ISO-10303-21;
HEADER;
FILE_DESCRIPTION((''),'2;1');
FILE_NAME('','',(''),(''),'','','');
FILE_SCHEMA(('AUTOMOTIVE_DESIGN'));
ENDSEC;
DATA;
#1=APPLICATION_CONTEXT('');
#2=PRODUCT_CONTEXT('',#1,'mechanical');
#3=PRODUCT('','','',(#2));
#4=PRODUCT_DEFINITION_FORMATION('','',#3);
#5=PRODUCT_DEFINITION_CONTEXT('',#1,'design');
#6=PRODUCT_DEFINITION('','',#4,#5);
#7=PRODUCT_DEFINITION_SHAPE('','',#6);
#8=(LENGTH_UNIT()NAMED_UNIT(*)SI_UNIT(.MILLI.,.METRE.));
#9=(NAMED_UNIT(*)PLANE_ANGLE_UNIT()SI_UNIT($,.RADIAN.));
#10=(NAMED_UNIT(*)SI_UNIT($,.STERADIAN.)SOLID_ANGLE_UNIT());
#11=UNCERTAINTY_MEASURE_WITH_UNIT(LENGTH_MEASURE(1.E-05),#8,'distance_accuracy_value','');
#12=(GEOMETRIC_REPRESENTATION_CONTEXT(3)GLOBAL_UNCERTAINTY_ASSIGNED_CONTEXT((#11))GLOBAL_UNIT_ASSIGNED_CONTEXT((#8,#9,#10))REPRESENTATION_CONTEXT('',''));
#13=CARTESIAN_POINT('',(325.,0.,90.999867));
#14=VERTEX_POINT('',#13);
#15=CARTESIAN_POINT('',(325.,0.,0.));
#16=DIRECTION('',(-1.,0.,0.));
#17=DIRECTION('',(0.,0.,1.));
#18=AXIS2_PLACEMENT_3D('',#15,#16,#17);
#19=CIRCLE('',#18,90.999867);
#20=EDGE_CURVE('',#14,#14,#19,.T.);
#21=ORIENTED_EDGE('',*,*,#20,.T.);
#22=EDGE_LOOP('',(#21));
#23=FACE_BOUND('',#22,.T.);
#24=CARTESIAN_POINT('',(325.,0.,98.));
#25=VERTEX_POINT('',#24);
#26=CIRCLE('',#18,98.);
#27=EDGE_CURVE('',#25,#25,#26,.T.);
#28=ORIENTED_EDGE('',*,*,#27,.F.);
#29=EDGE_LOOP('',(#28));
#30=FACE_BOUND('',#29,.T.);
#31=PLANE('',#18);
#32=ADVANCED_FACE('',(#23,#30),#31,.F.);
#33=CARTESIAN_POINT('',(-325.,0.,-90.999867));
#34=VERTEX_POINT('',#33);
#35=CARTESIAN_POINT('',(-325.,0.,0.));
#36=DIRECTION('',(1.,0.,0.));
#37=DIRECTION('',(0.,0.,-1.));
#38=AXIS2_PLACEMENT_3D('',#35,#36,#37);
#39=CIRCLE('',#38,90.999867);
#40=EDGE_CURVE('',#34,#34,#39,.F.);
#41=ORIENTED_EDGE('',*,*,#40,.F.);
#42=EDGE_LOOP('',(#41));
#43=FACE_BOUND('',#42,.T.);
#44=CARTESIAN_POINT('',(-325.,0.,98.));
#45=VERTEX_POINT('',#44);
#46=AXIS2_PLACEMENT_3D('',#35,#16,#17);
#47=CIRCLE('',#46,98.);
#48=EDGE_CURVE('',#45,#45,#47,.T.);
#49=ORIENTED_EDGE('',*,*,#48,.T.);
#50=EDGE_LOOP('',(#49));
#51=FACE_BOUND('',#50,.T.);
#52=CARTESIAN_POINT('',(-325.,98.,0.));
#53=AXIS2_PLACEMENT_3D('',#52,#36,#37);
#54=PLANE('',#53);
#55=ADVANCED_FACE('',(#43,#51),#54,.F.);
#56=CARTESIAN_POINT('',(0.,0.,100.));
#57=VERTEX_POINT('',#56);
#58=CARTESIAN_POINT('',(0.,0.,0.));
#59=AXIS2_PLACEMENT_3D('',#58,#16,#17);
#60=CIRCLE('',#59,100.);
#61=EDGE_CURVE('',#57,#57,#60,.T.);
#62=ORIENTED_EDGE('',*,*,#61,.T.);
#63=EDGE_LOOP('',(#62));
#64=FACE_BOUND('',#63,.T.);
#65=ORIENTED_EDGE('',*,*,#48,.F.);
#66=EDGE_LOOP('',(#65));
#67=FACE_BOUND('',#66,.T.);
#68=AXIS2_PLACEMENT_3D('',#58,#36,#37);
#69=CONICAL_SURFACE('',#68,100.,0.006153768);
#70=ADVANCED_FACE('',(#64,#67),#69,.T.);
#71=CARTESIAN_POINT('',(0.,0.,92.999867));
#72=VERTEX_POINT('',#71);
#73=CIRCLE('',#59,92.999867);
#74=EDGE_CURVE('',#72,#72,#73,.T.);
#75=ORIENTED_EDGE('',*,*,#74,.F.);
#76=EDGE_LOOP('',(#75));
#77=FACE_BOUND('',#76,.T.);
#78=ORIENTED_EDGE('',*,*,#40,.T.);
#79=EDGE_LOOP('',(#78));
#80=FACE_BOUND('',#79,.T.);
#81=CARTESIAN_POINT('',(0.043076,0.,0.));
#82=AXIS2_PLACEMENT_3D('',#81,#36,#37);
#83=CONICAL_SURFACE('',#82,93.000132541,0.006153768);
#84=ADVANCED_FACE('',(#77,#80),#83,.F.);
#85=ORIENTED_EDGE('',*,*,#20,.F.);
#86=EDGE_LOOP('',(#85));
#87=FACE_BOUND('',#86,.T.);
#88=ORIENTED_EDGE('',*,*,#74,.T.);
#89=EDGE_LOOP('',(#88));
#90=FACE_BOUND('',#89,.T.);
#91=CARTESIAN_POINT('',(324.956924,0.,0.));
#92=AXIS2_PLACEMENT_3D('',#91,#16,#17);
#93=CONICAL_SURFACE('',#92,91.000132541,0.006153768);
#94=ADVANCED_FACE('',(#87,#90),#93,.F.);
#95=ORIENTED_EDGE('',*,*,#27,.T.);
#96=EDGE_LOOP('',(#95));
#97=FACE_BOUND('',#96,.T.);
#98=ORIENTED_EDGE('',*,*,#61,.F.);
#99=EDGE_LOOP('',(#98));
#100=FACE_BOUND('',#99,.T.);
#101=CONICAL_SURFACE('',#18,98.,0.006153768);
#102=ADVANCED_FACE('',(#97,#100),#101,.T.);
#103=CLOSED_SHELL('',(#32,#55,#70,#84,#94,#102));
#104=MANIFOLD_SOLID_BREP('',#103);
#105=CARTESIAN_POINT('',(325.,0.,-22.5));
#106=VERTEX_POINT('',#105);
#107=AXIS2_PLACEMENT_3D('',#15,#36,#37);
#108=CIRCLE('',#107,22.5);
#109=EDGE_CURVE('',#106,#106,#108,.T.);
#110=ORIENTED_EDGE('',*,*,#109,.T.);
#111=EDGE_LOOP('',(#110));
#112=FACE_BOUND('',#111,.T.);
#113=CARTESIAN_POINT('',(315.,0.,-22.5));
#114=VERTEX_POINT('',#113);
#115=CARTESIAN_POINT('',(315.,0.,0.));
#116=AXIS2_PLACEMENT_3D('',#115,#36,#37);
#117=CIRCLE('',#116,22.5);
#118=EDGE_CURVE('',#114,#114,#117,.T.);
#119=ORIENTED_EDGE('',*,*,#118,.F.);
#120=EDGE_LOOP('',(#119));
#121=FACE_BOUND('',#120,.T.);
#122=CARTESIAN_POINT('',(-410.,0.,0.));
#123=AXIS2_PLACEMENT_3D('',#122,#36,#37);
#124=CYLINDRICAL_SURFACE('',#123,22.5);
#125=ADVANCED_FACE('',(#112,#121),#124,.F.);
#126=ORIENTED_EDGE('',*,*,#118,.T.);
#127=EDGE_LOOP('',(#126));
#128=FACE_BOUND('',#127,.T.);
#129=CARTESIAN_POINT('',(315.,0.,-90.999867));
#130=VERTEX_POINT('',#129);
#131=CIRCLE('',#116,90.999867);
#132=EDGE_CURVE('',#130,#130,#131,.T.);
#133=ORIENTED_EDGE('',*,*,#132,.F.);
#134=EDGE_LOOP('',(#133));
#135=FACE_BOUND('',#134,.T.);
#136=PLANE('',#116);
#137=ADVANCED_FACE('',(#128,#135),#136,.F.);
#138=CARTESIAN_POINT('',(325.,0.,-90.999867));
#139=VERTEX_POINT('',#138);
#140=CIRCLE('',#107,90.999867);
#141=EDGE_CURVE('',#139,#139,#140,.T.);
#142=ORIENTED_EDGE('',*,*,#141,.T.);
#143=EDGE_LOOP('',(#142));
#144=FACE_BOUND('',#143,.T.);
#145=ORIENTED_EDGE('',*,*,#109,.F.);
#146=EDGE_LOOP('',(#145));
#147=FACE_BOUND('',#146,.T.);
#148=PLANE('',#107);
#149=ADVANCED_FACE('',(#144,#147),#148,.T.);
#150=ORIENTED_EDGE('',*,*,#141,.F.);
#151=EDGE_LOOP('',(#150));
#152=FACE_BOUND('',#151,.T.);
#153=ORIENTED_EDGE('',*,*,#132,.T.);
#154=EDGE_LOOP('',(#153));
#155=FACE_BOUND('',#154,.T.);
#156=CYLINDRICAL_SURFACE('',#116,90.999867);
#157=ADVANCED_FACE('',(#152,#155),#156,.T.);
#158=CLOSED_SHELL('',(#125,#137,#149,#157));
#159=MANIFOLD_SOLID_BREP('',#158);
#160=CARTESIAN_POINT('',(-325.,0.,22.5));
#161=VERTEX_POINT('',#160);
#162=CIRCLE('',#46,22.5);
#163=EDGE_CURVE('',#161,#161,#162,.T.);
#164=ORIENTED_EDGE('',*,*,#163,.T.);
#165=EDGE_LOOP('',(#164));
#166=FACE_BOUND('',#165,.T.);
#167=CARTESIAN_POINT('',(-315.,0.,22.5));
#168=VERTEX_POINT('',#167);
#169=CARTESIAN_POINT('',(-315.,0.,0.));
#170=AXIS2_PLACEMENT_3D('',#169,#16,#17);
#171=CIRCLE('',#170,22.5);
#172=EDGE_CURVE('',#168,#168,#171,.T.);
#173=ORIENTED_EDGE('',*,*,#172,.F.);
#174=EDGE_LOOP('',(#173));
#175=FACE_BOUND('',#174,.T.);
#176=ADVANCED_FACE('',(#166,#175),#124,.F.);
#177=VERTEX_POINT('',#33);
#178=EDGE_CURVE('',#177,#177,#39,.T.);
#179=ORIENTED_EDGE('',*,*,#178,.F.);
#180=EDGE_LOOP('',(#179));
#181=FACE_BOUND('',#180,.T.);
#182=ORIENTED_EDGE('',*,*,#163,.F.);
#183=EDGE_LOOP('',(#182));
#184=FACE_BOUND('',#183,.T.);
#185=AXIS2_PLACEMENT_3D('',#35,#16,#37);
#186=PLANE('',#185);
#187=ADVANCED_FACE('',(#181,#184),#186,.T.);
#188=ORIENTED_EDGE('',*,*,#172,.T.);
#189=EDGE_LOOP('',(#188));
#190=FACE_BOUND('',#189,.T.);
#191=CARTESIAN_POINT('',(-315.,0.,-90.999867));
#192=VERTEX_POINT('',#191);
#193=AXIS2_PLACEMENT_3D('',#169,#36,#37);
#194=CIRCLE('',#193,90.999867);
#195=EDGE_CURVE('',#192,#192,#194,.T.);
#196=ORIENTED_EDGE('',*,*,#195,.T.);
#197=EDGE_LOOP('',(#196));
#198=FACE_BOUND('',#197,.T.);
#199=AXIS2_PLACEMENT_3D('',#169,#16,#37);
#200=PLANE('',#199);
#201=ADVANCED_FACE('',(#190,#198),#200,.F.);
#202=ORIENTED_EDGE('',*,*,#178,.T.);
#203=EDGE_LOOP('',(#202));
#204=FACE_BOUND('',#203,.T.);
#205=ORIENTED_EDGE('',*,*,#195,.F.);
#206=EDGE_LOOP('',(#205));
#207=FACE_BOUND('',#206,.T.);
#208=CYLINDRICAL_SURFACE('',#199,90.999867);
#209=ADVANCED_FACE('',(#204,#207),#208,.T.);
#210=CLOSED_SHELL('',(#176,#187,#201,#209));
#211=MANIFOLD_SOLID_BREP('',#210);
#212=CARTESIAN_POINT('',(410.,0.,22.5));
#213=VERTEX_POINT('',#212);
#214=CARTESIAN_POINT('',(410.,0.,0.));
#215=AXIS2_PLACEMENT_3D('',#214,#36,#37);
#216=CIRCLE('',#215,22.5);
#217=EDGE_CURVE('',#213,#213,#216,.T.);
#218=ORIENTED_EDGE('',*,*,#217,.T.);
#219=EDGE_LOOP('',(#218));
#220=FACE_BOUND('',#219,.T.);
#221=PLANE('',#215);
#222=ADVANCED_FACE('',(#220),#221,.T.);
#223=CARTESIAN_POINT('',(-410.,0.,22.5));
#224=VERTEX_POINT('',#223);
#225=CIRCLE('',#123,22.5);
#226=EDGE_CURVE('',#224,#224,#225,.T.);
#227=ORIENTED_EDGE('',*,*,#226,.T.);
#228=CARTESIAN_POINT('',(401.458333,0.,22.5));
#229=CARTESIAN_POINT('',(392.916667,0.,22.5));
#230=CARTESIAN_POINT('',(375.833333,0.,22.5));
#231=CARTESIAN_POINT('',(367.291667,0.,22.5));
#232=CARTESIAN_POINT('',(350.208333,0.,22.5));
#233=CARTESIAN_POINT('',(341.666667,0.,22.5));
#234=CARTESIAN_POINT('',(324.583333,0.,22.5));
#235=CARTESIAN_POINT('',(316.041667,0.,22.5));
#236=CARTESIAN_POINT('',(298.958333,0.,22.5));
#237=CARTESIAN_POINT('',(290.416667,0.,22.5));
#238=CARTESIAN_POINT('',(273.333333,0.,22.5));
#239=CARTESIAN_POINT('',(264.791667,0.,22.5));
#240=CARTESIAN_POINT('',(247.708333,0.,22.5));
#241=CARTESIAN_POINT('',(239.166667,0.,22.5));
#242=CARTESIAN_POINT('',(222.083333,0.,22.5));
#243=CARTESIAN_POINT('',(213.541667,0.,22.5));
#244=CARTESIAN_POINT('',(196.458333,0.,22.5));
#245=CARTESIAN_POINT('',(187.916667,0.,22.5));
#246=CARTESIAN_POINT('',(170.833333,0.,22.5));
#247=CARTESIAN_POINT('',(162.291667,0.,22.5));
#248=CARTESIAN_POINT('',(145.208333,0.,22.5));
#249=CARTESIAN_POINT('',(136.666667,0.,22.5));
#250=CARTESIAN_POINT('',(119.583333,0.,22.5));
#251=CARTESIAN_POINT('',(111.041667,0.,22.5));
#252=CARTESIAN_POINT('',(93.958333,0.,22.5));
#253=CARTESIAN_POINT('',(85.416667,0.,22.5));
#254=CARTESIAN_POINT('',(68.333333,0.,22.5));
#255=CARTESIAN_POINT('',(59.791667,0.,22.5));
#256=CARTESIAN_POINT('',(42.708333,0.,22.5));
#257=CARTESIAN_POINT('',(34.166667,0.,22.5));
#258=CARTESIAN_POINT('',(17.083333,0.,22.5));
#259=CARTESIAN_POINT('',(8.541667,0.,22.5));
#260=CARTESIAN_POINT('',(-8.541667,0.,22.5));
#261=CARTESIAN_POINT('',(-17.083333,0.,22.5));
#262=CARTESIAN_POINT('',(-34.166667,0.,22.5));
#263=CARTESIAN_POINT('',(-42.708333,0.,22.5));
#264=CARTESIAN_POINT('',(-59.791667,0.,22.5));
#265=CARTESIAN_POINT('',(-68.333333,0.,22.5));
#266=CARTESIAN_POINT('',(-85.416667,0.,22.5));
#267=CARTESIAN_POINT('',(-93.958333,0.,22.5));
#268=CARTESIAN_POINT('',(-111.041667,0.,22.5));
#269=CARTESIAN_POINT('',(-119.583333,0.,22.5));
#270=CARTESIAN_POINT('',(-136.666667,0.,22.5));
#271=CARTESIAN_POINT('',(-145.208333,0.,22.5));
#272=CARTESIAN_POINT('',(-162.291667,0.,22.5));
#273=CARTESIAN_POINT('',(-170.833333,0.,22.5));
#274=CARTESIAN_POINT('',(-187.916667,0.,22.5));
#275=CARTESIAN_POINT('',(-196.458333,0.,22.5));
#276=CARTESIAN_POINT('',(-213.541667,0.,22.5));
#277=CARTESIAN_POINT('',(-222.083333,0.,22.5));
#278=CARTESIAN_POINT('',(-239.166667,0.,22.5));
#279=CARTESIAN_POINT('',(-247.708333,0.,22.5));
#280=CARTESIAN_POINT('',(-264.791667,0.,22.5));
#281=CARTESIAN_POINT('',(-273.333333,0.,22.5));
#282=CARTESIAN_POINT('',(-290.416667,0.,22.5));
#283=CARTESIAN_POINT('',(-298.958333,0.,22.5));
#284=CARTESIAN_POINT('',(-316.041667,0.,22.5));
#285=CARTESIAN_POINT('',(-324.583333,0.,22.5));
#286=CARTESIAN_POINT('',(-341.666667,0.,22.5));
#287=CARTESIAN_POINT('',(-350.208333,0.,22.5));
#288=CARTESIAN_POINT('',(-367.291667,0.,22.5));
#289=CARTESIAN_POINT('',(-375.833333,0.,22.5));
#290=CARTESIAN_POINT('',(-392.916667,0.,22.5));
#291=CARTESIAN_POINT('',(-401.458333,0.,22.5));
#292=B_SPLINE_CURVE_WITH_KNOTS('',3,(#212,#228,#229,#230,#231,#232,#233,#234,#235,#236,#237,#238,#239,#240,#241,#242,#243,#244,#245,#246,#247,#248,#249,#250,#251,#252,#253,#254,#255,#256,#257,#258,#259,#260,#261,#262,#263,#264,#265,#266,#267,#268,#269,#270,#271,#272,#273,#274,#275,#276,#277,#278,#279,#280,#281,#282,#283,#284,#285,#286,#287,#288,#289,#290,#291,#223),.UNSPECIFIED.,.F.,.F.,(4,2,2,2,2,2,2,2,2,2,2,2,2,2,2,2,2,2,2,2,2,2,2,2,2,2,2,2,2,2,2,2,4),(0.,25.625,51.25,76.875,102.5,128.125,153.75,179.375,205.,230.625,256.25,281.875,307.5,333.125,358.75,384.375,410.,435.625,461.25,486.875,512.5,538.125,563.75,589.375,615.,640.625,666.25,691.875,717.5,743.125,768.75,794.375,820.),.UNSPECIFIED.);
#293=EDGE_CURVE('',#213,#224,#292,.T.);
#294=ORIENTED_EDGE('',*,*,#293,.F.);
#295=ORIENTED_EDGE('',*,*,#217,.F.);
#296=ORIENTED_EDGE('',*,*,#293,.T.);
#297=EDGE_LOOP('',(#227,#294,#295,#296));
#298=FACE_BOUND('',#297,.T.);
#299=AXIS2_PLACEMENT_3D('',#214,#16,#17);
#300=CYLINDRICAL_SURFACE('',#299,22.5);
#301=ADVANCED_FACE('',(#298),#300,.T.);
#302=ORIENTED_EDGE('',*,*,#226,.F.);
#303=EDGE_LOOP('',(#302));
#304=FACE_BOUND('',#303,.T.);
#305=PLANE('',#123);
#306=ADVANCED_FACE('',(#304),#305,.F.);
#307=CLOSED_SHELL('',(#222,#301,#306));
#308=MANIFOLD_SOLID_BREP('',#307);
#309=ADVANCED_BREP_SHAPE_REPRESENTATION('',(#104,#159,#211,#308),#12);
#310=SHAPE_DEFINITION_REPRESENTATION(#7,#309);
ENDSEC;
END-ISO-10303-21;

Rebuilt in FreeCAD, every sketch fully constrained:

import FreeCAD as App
import Part
import Sketcher

V = App.Vector
Q = App.Units.Quantity


def faces_at(feature, points):
    """Names of the faces that lie closest to the given points."""
    faces = feature.Shape.Faces
    near = lambda p: min(range(len(faces)), key=lambda i: faces[i].distToShape(Part.Vertex(*p))[0])
    return sorted({f"Face{near(p) + 1}" for p in points})


def add_polygon(sketch, points):
    """Adds a closed chain of lines whose ends are joined by coincident constraints."""
    first, n = sketch.GeometryCount, len(points)
    for a, b in zip(points, points[1:] + points[:1]):
        sketch.addGeometry(Part.LineSegment(App.Vector(*a, 0), App.Vector(*b, 0)), False)
    for i in range(n):
        sketch.addConstraint(Sketcher.Constraint("Coincident", first + i, 2, first + (i + 1) % n, 1))

doc = App.newDocument("Part")
params = doc.addObject("Spreadsheet::Sheet", "Params")
for row, (alias, value) in enumerate([
    ("sketch1_width", "650 mm"),
    ("sketch1_height", "98 mm"),
    ("revolution_angle", "360 deg"),
    ("thickness_wall", "7 mm"),
    ("pad1_length", "10 mm"),
    ("sketch3_diameter", "45 mm"),
    ("pad2_length", "735 mm"),
    ("sketch4_diameter", "45 mm"),
    ("pad3_length", "820 mm"),
], start=1):
    params.set(f"A{row}", alias)
    params.set(f"B{row}", "=" + value)
    params.setAlias(f"B{row}", alias)

body = doc.addObject("PartDesign::Body", "Body")

# Sketch on XY plane
sketch1 = body.newObject("Sketcher::SketchObject", "Sketch")
sketch1.AttachmentSupport = (doc.getObject("XY_Plane"), [""])
sketch1.MapMode = "FlatFace"
add_polygon(sketch1, [(0, 100), (-325, 98), (-325, 0), (325, 0), (325, 98)])  # lines 0-4
sketch1.addConstraint(Sketcher.Constraint("Vertical", 1))
sketch1.addConstraint(Sketcher.Constraint("Horizontal", 2))
sketch1.addConstraint(Sketcher.Constraint("Vertical", 3))
sketch1.addConstraint(Sketcher.Constraint("Symmetric", 1, 2, 2, 2, -1, 1))
sketch1.addConstraint(Sketcher.Constraint("PointOnObject", 4, 2, -2))
sketch1.addConstraint(Sketcher.Constraint("Horizontal", 0, 2, 3, 2))
sketch1.addConstraint(Sketcher.Constraint("DistanceX", 2, 1, 2, 2, Q("650 mm")))
sketch1.addConstraint(Sketcher.Constraint("DistanceY", 1, 2, 1, 1, Q("98 mm")))
sketch1.addConstraint(Sketcher.Constraint("DistanceY", -1, 1, 4, 2, Q("100 mm")))
sketch1.setExpression("Constraints[11]", "Params.sketch1_width")
sketch1.setExpression("Constraints[12]", "Params.sketch1_height")
revolution = body.newObject("PartDesign::Revolution", "Revolution")
revolution.Profile = sketch1
revolution.ReferenceAxis = (sketch1, ["H_Axis"])
revolution.setExpression("Angle", "Params.revolution_angle")
doc.recompute()

thickness = body.newObject("PartDesign::Thickness", "Thickness")
thickness.Base = (revolution, faces_at(revolution, [(325, 0, 0), (-325, 0, 0)]))
thickness.setExpression("Value", "Params.thickness_wall")
thickness.Reversed = True
thickness.Join = "Arc"
body2 = doc.addObject("PartDesign::Body", "Body001")

# Sketch on YZ plane
sketch2 = body2.newObject("Sketcher::SketchObject", "Sketch001")
sketch2.AttachmentSupport = (doc.getObject("YZ_Plane001"), [""])
sketch2.MapMode = "FlatFace"
sketch2.AttachmentOffset = App.Placement(V(0, 0, 325), App.Rotation())
sketch2.addGeometry(Part.Circle(V(0, 0, 0), V(0, 0, 1), 91), False)
sketch2.addConstraint(Sketcher.Constraint("Coincident", 0, 3, -1, 1))
sketch2.addConstraint(Sketcher.Constraint("Diameter", 0, Q("181.999735 mm")))
pad1 = body2.newObject("PartDesign::Pad", "Pad")
pad1.Profile = sketch2
pad1.setExpression("Length", "Params.pad1_length")
pad1.Reversed = True
body3 = doc.addObject("PartDesign::Body", "Body002")
doc.recompute()

mirroring = doc.addObject("Part::Mirroring", "Mirroring")
mirroring.Source = body2
mirroring.Base = V(0, 0, 0)
mirroring.Normal = V(1, 0, 0)
body3.BaseFeature = mirroring
doc.recompute()
body4 = doc.addObject("PartDesign::Body", "Body003")

# Sketch on YZ plane
sketch3 = body4.newObject("Sketcher::SketchObject", "Sketch002")
sketch3.AttachmentSupport = (doc.getObject("YZ_Plane003"), [""])
sketch3.MapMode = "FlatFace"
sketch3.AttachmentOffset = App.Placement(V(0, 0, 325), App.Rotation())
sketch3.addGeometry(Part.Circle(V(0, 0, 0), V(0, 0, 1), 22), False)
sketch3.addConstraint(Sketcher.Constraint("Coincident", 0, 3, -1, 1))
sketch3.addConstraint(Sketcher.Constraint("Diameter", 0, Q("45 mm")))
sketch3.setExpression("Constraints[1]", "Params.sketch3_diameter")
pad2 = body4.newObject("PartDesign::Pad", "Pad001")
pad2.Profile = sketch3
pad2.setExpression("Length", "Params.pad2_length")
pad2.Reversed = True
doc.recompute()

body5 = doc.addObject("PartDesign::Body", "Body004")
body5.BaseFeature = body4
boolean = body2.newObject("PartDesign::Boolean", "Boolean")
boolean.Type = "Cut"
boolean.addObjects([body5])
doc.recompute()

boolean2 = body3.newObject("PartDesign::Boolean", "Boolean001")
boolean2.Type = "Cut"
boolean2.addObjects([body4])
body6 = doc.addObject("PartDesign::Body", "Body005")

# Sketch on YZ plane
sketch4 = body6.newObject("Sketcher::SketchObject", "Sketch003")
sketch4.AttachmentSupport = (doc.getObject("YZ_Plane005"), [""])
sketch4.MapMode = "FlatFace"
sketch4.addGeometry(Part.Circle(V(0, 0, 0), V(0, 0, 1), 22), False)
sketch4.addConstraint(Sketcher.Constraint("Coincident", 0, 3, -1, 1))
sketch4.addConstraint(Sketcher.Constraint("Diameter", 0, Q("45 mm")))
sketch4.setExpression("Constraints[1]", "Params.sketch4_diameter")
pad3 = body6.newObject("PartDesign::Pad", "Pad002")
pad3.Profile = sketch4
pad3.setExpression("Length", "Params.pad3_length")
pad3.Midplane = True
mirroring.Visibility = False

doc.recompute()
